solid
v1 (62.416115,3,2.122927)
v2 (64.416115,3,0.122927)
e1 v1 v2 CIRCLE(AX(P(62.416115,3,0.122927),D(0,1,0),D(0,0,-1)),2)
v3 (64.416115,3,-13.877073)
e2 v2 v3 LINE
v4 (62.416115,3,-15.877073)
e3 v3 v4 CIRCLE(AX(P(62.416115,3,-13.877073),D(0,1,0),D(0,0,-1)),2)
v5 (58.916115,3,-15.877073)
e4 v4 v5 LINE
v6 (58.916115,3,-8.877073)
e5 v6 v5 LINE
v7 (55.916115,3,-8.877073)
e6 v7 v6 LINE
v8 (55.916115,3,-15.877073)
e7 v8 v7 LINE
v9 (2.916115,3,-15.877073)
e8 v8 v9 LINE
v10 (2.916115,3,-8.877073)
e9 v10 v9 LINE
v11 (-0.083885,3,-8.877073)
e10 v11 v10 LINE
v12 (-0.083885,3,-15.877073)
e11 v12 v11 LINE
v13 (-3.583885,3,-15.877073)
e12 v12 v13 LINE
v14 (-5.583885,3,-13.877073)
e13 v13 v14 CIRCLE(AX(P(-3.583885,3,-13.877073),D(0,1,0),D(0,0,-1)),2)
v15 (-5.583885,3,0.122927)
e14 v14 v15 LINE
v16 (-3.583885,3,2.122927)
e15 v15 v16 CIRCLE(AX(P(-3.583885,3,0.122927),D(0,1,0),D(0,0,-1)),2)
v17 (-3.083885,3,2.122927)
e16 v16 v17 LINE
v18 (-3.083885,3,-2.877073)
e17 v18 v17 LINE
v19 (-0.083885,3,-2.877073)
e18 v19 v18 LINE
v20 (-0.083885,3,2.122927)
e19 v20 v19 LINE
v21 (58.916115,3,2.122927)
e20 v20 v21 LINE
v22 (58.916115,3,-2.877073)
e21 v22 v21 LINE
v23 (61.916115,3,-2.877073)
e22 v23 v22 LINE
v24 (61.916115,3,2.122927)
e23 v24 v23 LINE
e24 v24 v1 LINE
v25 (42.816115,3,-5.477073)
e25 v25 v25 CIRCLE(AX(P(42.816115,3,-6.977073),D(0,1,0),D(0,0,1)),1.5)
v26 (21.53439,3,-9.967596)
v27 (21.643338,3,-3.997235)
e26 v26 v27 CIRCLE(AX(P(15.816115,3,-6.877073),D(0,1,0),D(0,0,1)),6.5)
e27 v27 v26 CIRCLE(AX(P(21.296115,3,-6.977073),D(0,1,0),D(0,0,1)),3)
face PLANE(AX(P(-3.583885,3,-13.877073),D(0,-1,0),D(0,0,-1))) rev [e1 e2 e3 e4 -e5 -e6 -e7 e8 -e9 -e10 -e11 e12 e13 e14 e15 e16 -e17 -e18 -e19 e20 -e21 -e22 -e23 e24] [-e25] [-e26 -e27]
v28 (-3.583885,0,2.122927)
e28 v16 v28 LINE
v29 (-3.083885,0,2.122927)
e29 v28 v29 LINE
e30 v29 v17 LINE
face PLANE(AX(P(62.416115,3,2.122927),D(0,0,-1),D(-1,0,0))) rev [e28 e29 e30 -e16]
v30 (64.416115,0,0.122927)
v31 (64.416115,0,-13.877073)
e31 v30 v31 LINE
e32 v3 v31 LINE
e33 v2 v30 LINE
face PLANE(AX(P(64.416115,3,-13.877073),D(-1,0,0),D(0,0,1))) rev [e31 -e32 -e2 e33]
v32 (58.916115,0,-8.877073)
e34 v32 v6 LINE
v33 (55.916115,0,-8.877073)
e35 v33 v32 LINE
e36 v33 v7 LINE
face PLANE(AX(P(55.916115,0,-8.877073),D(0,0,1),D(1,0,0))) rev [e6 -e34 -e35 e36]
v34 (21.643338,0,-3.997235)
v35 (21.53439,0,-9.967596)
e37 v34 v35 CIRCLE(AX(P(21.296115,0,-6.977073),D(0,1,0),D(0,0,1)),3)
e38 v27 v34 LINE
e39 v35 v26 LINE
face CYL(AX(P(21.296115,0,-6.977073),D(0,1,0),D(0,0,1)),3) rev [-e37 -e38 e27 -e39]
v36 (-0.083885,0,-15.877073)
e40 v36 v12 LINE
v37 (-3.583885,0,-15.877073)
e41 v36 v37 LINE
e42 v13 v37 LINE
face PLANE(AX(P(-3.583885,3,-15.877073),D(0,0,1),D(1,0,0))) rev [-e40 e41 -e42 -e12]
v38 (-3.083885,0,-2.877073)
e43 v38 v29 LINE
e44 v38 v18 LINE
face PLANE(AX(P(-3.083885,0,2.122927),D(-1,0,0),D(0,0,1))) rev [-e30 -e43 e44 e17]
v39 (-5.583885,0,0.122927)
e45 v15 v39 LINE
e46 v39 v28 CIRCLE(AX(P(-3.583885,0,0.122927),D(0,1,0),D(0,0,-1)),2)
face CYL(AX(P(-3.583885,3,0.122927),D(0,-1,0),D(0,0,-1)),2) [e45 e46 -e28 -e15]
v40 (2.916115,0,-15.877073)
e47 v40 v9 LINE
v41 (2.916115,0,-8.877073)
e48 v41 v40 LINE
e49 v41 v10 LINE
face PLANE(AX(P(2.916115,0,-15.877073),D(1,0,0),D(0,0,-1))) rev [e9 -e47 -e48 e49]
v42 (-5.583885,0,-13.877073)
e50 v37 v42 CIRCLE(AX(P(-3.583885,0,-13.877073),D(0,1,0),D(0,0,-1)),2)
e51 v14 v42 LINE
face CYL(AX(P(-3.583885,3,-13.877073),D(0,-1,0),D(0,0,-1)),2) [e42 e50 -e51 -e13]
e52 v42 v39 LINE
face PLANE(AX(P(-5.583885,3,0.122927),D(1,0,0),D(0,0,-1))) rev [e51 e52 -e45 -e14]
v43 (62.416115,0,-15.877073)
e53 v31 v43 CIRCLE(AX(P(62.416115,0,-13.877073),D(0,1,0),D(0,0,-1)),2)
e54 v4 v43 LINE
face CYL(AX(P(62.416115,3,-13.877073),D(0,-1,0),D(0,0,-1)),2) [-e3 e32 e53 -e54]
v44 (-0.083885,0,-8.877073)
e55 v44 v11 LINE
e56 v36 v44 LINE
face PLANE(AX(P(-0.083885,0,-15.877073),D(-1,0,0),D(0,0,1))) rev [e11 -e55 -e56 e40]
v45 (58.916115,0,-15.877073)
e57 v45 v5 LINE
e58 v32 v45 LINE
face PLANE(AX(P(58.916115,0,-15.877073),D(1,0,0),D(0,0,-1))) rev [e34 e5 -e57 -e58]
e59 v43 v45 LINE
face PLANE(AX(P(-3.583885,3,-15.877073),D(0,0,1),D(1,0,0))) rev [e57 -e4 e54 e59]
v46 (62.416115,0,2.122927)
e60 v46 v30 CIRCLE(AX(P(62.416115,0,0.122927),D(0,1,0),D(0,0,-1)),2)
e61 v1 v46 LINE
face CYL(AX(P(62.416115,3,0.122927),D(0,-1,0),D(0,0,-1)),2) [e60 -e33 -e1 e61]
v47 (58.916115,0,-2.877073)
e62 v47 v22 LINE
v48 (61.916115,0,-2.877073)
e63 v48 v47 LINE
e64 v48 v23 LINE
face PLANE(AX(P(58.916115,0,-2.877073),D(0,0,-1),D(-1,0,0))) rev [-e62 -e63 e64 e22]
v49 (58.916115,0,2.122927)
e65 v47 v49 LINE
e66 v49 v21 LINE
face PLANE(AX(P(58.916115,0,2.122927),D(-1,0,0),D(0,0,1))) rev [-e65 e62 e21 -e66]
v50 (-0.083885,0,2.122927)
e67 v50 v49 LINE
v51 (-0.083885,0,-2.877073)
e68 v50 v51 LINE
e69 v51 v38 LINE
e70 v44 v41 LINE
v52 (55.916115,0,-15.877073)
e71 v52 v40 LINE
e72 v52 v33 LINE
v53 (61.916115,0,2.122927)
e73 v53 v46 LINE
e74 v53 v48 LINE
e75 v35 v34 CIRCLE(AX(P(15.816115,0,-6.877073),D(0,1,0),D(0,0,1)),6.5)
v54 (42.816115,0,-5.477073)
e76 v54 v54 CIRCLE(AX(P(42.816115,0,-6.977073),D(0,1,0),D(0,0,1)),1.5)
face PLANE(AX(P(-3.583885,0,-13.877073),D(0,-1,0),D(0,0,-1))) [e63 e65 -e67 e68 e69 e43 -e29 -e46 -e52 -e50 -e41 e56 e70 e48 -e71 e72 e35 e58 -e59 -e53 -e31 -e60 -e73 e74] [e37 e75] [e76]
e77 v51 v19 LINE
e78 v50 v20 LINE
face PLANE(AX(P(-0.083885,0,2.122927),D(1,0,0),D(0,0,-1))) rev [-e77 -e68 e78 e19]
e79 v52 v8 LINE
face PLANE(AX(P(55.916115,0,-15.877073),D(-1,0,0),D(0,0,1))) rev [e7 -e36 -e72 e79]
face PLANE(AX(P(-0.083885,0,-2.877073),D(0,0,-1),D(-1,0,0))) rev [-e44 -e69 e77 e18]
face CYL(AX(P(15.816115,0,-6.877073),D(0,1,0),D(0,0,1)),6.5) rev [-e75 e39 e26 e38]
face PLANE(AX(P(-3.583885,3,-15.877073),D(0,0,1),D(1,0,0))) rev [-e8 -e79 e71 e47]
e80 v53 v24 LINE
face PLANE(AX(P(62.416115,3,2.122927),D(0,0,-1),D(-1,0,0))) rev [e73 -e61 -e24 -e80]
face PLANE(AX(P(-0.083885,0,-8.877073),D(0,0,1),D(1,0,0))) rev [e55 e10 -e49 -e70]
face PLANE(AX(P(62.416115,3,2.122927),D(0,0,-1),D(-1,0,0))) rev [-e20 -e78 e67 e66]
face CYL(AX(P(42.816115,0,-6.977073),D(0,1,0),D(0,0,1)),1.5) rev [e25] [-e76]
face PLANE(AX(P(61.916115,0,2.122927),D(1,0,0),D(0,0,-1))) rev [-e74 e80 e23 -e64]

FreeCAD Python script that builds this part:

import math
import FreeCAD as App
import Part
import Sketcher
Q = App.Units.Quantity

doc = App.newDocument("Part")
params = doc.addObject("Spreadsheet::Sheet", "Params")
for row, (alias, value) in enumerate([
    ("sketch1_radius", "2 mm"),
    ("sketch1_width", "66 mm"),
    ("sketch1_height", "14 mm"),
    ("pad1_length", "3 mm"),
    ("sketch2_diameter", "13 mm"),
    ("pocket1_length", "3 mm"),
    ("sketch3_diameter", "6 mm"),
    ("sketch3_diameter2", "3 mm"),
    ("pocket2_length", "3 mm"),
    ("sketch4_width", "3 mm"),
    ("sketch4_height", "7 mm"),
    ("pocket3_length", "3 mm"),
    ("sketch5_width", "3 mm"),
    ("sketch5_height", "5 mm"),
    ("pocket4_length", "3 mm"),
], start=1):
    params.set(f"A{row}", alias)
    params.set(f"B{row}", "=" + value)
    params.setAlias(f"B{row}", alias)

body = doc.addObject("PartDesign::Body", "Body")

# Sketch on XZ plane
sketch1 = body.newObject("Sketcher::SketchObject", "Sketch")
sketch1.AttachmentSupport = (doc.getObject("XZ_Plane"), [""])
sketch1.MapMode = "FlatFace"
sketch1.addGeometry(Part.LineSegment(App.Vector(62.416115, -15.877073, 0), App.Vector(-3.583885, -15.877073, 0)), False)
sketch1.addGeometry(Part.ArcOfCircle(Part.Circle(App.Vector(-3.583885, -13.877073, 0), App.Vector(0, 0, 1), 2), math.radians(180), math.radians(270)), False)
sketch1.addGeometry(Part.LineSegment(App.Vector(-5.583885, -13.877073, 0), App.Vector(-5.583885, 0.122927, 0)), False)
sketch1.addGeometry(Part.ArcOfCircle(Part.Circle(App.Vector(-3.583885, 0.122927, 0), App.Vector(0, 0, 1), 2), math.radians(90), math.radians(180)), False)
sketch1.addGeometry(Part.LineSegment(App.Vector(-3.583885, 2.122927, 0), App.Vector(62.416115, 2.122927, 0)), False)
sketch1.addGeometry(Part.ArcOfCircle(Part.Circle(App.Vector(62.416115, 0.122927, 0), App.Vector(0, 0, 1), 2), math.radians(0), math.radians(90)), False)
sketch1.addGeometry(Part.LineSegment(App.Vector(64.416115, 0.122927, 0), App.Vector(64.416115, -13.877073, 0)), False)
sketch1.addGeometry(Part.ArcOfCircle(Part.Circle(App.Vector(62.416115, -13.877073, 0), App.Vector(0, 0, 1), 2), math.radians(-90), math.radians(0)), False)
sketch1.addConstraint(Sketcher.Constraint("Tangent", 0, 2, 1, 2))
sketch1.addConstraint(Sketcher.Constraint("Tangent", 1, 1, 2, 1))
sketch1.addConstraint(Sketcher.Constraint("Tangent", 2, 2, 3, 2))
sketch1.addConstraint(Sketcher.Constraint("Tangent", 3, 1, 4, 1))
sketch1.addConstraint(Sketcher.Constraint("Tangent", 4, 2, 5, 2))
sketch1.addConstraint(Sketcher.Constraint("Tangent", 5, 1, 6, 1))
sketch1.addConstraint(Sketcher.Constraint("Tangent", 6, 2, 7, 2))
sketch1.addConstraint(Sketcher.Constraint("Tangent", 7, 1, 0, 1))
sketch1.addConstraint(Sketcher.Constraint("Horizontal", 0))
sketch1.addConstraint(Sketcher.Constraint("Vertical", 2))
sketch1.addConstraint(Sketcher.Constraint("Horizontal", 4))
sketch1.addConstraint(Sketcher.Constraint("Vertical", 6))
sketch1.addConstraint(Sketcher.Constraint("Equal", 1, 3))
sketch1.addConstraint(Sketcher.Constraint("Equal", 3, 5))
sketch1.addConstraint(Sketcher.Constraint("Equal", 5, 7))
sketch1.addConstraint(Sketcher.Constraint("Radius", 1, Q("2 mm")))
sketch1.addConstraint(Sketcher.Constraint("DistanceX", 0, 2, 0, 1, Q("66 mm")))
sketch1.addConstraint(Sketcher.Constraint("DistanceY", 2, 1, 2, 2, Q("14 mm")))
sketch1.addConstraint(Sketcher.Constraint("DistanceX", 1, 3, -1, 1, Q("3.583885 mm")))
sketch1.addConstraint(Sketcher.Constraint("DistanceY", 1, 3, -1, 1, Q("13.877073 mm")))
sketch1.setExpression("Constraints[15]", "Params.sketch1_radius")
sketch1.setExpression("Constraints[16]", "Params.sketch1_width")
sketch1.setExpression("Constraints[17]", "Params.sketch1_height")
pad1 = body.newObject("PartDesign::Pad", "Pad")
pad1.Profile = sketch1
pad1.setExpression("Length", "Params.pad1_length")
pad1.Reversed = True

# Sketch on XZ plane
sketch2 = body.newObject("Sketcher::SketchObject", "Sketch001")
sketch2.AttachmentSupport = (doc.getObject("XZ_Plane"), [""])
sketch2.MapMode = "FlatFace"
sketch2.AttachmentOffset = App.Placement(App.Vector(0, 0, -3), App.Rotation())
sketch2.addGeometry(Part.Circle(App.Vector(15.816115, -6.877073, 0), App.Vector(0, 0, 1), 6.5), False)
sketch2.addConstraint(Sketcher.Constraint("Diameter", 0, Q("13 mm")))
sketch2.addConstraint(Sketcher.Constraint("DistanceX", -1, 1, 0, 3, Q("15.816115 mm")))
sketch2.addConstraint(Sketcher.Constraint("DistanceY", 0, 3, -1, 1, Q("6.877073 mm")))
sketch2.setExpression("Constraints[0]", "Params.sketch2_diameter")
pocket1 = body.newObject("PartDesign::Pocket", "Pocket")
pocket1.Profile = sketch2
pocket1.setExpression("Length", "Params.pocket1_length")
pocket1.Reversed = True

# Sketch on XZ plane
sketch3 = body.newObject("Sketcher::SketchObject", "Sketch002")
sketch3.AttachmentSupport = (doc.getObject("XZ_Plane"), [""])
sketch3.MapMode = "FlatFace"
sketch3.AttachmentOffset = App.Placement(App.Vector(0, 0, -3), App.Rotation())
sketch3.addGeometry(Part.Circle(App.Vector(21.296115, -6.977073, 0), App.Vector(0, 0, 1), 3), False)
sketch3.addGeometry(Part.Circle(App.Vector(42.816115, -6.977073, 0), App.Vector(0, 0, 1), 1.5), False)
sketch3.addConstraint(Sketcher.Constraint("Horizontal", 0, 3, 1, 3))
sketch3.addConstraint(Sketcher.Constraint("Diameter", 0, Q("6 mm")))
sketch3.addConstraint(Sketcher.Constraint("Diameter", 1, Q("3 mm")))
sketch3.addConstraint(Sketcher.Constraint("DistanceX", 0, 3, 1, 3, Q("21.52 mm")))
sketch3.addConstraint(Sketcher.Constraint("DistanceX", -1, 1, 0, 3, Q("21.296115 mm")))
sketch3.addConstraint(Sketcher.Constraint("DistanceY", 0, 3, -1, 1, Q("6.977073 mm")))
sketch3.setExpression("Constraints[1]", "Params.sketch3_diameter")
sketch3.setExpression("Constraints[2]", "Params.sketch3_diameter2")
pocket2 = body.newObject("PartDesign::Pocket", "Pocket001")
pocket2.Profile = sketch3
pocket2.setExpression("Length", "Params.pocket2_length")
pocket2.Reversed = True

# Sketch on XZ plane
sketch4 = body.newObject("Sketcher::SketchObject", "Sketch003")
sketch4.AttachmentSupport = (doc.getObject("XZ_Plane"), [""])
sketch4.MapMode = "FlatFace"
sketch4.AttachmentOffset = App.Placement(App.Vector(0, 0, -3), App.Rotation())
sketch4.addGeometry(Part.LineSegment(App.Vector(-0.083885, -15.877073, 0), App.Vector(-0.083885, -8.877073, 0)), False)
sketch4.addGeometry(Part.LineSegment(App.Vector(-0.083885, -8.877073, 0), App.Vector(2.916115, -8.877073, 0)), False)
sketch4.addGeometry(Part.LineSegment(App.Vector(2.916115, -8.877073, 0), App.Vector(2.916115, -15.877073, 0)), False)
sketch4.addGeometry(Part.LineSegment(App.Vector(2.916115, -15.877073, 0), App.Vector(-0.083885, -15.877073, 0)), False)
sketch4.addGeometry(Part.LineSegment(App.Vector(55.916115, -15.877073, 0), App.Vector(55.916115, -8.877073, 0)), False)
sketch4.addGeometry(Part.LineSegment(App.Vector(55.916115, -8.877073, 0), App.Vector(58.916115, -8.877073, 0)), False)
sketch4.addGeometry(Part.LineSegment(App.Vector(58.916115, -8.877073, 0), App.Vector(58.916115, -15.877073, 0)), False)
sketch4.addGeometry(Part.LineSegment(App.Vector(58.916115, -15.877073, 0), App.Vector(55.916115, -15.877073, 0)), False)
sketch4.addConstraint(Sketcher.Constraint("Coincident", 0, 2, 1, 1))
sketch4.addConstraint(Sketcher.Constraint("Coincident", 1, 2, 2, 1))
sketch4.addConstraint(Sketcher.Constraint("Coincident", 2, 2, 3, 1))
sketch4.addConstraint(Sketcher.Constraint("Coincident", 3, 2, 0, 1))
sketch4.addConstraint(Sketcher.Constraint("Coincident", 4, 2, 5, 1))
sketch4.addConstraint(Sketcher.Constraint("Coincident", 5, 2, 6, 1))
sketch4.addConstraint(Sketcher.Constraint("Coincident", 6, 2, 7, 1))
sketch4.addConstraint(Sketcher.Constraint("Coincident", 7, 2, 4, 1))
sketch4.addConstraint(Sketcher.Constraint("Vertical", 0))
sketch4.addConstraint(Sketcher.Constraint("Horizontal", 1))
sketch4.addConstraint(Sketcher.Constraint("Vertical", 2))
sketch4.addConstraint(Sketcher.Constraint("Horizontal", 3))
sketch4.addConstraint(Sketcher.Constraint("Vertical", 4))
sketch4.addConstraint(Sketcher.Constraint("Horizontal", 5))
sketch4.addConstraint(Sketcher.Constraint("Vertical", 6))
sketch4.addConstraint(Sketcher.Constraint("Horizontal", 7))
sketch4.addConstraint(Sketcher.Constraint("Horizontal", 1, 2, 4, 2))
sketch4.addConstraint(Sketcher.Constraint("Horizontal", 3, 2, 6, 2))
sketch4.addConstraint(Sketcher.Constraint("Equal", 3, 5))
sketch4.addConstraint(Sketcher.Constraint("DistanceX", 1, 1, 1, 2, Q("3 mm")))
sketch4.addConstraint(Sketcher.Constraint("DistanceY", 0, 1, 0, 2, Q("7 mm")))
sketch4.addConstraint(Sketcher.Constraint("DistanceX", 1, 2, 4, 2, Q("53 mm")))
sketch4.addConstraint(Sketcher.Constraint("DistanceX", 0, 2, -1, 1, Q("0.083885 mm")))
sketch4.addConstraint(Sketcher.Constraint("DistanceY", 0, 2, -1, 1, Q("8.877073 mm")))
sketch4.setExpression("Constraints[19]", "Params.sketch4_width")
sketch4.setExpression("Constraints[20]", "Params.sketch4_height")
pocket3 = body.newObject("PartDesign::Pocket", "Pocket002")
pocket3.Profile = sketch4
pocket3.setExpression("Length", "Params.pocket3_length")
pocket3.Reversed = True

# Sketch on XZ plane
sketch5 = body.newObject("Sketcher::SketchObject", "Sketch004")
sketch5.AttachmentSupport = (doc.getObject("XZ_Plane"), [""])
sketch5.MapMode = "FlatFace"
sketch5.AttachmentOffset = App.Placement(App.Vector(0, 0, -3), App.Rotation())
sketch5.addGeometry(Part.LineSegment(App.Vector(58.916115, -2.877073, 0), App.Vector(58.916115, 2.122927, 0)), False)
sketch5.addGeometry(Part.LineSegment(App.Vector(58.916115, 2.122927, 0), App.Vector(61.916115, 2.122927, 0)), False)
sketch5.addGeometry(Part.LineSegment(App.Vector(61.916115, 2.122927, 0), App.Vector(61.916115, -2.877073, 0)), False)
sketch5.addGeometry(Part.LineSegment(App.Vector(61.916115, -2.877073, 0), App.Vector(58.916115, -2.877073, 0)), False)
sketch5.addGeometry(Part.LineSegment(App.Vector(-3.083885, -2.877073, 0), App.Vector(-3.083885, 2.122927, 0)), False)
sketch5.addGeometry(Part.LineSegment(App.Vector(-3.083885, 2.122927, 0), App.Vector(-0.083885, 2.122927, 0)), False)
sketch5.addGeometry(Part.LineSegment(App.Vector(-0.083885, 2.122927, 0), App.Vector(-0.083885, -2.877073, 0)), False)
sketch5.addGeometry(Part.LineSegment(App.Vector(-0.083885, -2.877073, 0), App.Vector(-3.083885, -2.877073, 0)), False)
sketch5.addConstraint(Sketcher.Constraint("Coincident", 0, 2, 1, 1))
sketch5.addConstraint(Sketcher.Constraint("Coincident", 1, 2, 2, 1))
sketch5.addConstraint(Sketcher.Constraint("Coincident", 2, 2, 3, 1))
sketch5.addConstraint(Sketcher.Constraint("Coincident", 3, 2, 0, 1))
sketch5.addConstraint(Sketcher.Constraint("Coincident", 4, 2, 5, 1))
sketch5.addConstraint(Sketcher.Constraint("Coincident", 5, 2, 6, 1))
sketch5.addConstraint(Sketcher.Constraint("Coincident", 6, 2, 7, 1))
sketch5.addConstraint(Sketcher.Constraint("Coincident", 7, 2, 4, 1))
sketch5.addConstraint(Sketcher.Constraint("Vertical", 0))
sketch5.addConstraint(Sketcher.Constraint("Horizontal", 1))
sketch5.addConstraint(Sketcher.Constraint("Vertical", 2))
sketch5.addConstraint(Sketcher.Constraint("Horizontal", 3))
sketch5.addConstraint(Sketcher.Constraint("Vertical", 4))
sketch5.addConstraint(Sketcher.Constraint("Horizontal", 5))
sketch5.addConstraint(Sketcher.Constraint("Vertical", 6))
sketch5.addConstraint(Sketcher.Constraint("Horizontal", 7))
sketch5.addConstraint(Sketcher.Constraint("Horizontal", 1, 2, 4, 2))
sketch5.addConstraint(Sketcher.Constraint("Horizontal", 3, 2, 6, 2))
sketch5.addConstraint(Sketcher.Constraint("Equal", 3, 5))
sketch5.addConstraint(Sketcher.Constraint("DistanceX", 1, 1, 1, 2, Q("3 mm")))
sketch5.addConstraint(Sketcher.Constraint("DistanceY", 0, 1, 0, 2, Q("5 mm")))
sketch5.addConstraint(Sketcher.Constraint("DistanceX", 4, 2, 0, 2, Q("62 mm")))
sketch5.addConstraint(Sketcher.Constraint("DistanceX", -1, 1, 0, 2, Q("58.916115 mm")))
sketch5.addConstraint(Sketcher.Constraint("DistanceY", -1, 1, 0, 2, Q("2.122927 mm")))
sketch5.setExpression("Constraints[19]", "Params.sketch5_width")
sketch5.setExpression("Constraints[20]", "Params.sketch5_height")
pocket4 = body.newObject("PartDesign::Pocket", "Pocket003")
pocket4.Profile = sketch5
pocket4.setExpression("Length", "Params.pocket4_length")
pocket4.Reversed = True

doc.recompute()
